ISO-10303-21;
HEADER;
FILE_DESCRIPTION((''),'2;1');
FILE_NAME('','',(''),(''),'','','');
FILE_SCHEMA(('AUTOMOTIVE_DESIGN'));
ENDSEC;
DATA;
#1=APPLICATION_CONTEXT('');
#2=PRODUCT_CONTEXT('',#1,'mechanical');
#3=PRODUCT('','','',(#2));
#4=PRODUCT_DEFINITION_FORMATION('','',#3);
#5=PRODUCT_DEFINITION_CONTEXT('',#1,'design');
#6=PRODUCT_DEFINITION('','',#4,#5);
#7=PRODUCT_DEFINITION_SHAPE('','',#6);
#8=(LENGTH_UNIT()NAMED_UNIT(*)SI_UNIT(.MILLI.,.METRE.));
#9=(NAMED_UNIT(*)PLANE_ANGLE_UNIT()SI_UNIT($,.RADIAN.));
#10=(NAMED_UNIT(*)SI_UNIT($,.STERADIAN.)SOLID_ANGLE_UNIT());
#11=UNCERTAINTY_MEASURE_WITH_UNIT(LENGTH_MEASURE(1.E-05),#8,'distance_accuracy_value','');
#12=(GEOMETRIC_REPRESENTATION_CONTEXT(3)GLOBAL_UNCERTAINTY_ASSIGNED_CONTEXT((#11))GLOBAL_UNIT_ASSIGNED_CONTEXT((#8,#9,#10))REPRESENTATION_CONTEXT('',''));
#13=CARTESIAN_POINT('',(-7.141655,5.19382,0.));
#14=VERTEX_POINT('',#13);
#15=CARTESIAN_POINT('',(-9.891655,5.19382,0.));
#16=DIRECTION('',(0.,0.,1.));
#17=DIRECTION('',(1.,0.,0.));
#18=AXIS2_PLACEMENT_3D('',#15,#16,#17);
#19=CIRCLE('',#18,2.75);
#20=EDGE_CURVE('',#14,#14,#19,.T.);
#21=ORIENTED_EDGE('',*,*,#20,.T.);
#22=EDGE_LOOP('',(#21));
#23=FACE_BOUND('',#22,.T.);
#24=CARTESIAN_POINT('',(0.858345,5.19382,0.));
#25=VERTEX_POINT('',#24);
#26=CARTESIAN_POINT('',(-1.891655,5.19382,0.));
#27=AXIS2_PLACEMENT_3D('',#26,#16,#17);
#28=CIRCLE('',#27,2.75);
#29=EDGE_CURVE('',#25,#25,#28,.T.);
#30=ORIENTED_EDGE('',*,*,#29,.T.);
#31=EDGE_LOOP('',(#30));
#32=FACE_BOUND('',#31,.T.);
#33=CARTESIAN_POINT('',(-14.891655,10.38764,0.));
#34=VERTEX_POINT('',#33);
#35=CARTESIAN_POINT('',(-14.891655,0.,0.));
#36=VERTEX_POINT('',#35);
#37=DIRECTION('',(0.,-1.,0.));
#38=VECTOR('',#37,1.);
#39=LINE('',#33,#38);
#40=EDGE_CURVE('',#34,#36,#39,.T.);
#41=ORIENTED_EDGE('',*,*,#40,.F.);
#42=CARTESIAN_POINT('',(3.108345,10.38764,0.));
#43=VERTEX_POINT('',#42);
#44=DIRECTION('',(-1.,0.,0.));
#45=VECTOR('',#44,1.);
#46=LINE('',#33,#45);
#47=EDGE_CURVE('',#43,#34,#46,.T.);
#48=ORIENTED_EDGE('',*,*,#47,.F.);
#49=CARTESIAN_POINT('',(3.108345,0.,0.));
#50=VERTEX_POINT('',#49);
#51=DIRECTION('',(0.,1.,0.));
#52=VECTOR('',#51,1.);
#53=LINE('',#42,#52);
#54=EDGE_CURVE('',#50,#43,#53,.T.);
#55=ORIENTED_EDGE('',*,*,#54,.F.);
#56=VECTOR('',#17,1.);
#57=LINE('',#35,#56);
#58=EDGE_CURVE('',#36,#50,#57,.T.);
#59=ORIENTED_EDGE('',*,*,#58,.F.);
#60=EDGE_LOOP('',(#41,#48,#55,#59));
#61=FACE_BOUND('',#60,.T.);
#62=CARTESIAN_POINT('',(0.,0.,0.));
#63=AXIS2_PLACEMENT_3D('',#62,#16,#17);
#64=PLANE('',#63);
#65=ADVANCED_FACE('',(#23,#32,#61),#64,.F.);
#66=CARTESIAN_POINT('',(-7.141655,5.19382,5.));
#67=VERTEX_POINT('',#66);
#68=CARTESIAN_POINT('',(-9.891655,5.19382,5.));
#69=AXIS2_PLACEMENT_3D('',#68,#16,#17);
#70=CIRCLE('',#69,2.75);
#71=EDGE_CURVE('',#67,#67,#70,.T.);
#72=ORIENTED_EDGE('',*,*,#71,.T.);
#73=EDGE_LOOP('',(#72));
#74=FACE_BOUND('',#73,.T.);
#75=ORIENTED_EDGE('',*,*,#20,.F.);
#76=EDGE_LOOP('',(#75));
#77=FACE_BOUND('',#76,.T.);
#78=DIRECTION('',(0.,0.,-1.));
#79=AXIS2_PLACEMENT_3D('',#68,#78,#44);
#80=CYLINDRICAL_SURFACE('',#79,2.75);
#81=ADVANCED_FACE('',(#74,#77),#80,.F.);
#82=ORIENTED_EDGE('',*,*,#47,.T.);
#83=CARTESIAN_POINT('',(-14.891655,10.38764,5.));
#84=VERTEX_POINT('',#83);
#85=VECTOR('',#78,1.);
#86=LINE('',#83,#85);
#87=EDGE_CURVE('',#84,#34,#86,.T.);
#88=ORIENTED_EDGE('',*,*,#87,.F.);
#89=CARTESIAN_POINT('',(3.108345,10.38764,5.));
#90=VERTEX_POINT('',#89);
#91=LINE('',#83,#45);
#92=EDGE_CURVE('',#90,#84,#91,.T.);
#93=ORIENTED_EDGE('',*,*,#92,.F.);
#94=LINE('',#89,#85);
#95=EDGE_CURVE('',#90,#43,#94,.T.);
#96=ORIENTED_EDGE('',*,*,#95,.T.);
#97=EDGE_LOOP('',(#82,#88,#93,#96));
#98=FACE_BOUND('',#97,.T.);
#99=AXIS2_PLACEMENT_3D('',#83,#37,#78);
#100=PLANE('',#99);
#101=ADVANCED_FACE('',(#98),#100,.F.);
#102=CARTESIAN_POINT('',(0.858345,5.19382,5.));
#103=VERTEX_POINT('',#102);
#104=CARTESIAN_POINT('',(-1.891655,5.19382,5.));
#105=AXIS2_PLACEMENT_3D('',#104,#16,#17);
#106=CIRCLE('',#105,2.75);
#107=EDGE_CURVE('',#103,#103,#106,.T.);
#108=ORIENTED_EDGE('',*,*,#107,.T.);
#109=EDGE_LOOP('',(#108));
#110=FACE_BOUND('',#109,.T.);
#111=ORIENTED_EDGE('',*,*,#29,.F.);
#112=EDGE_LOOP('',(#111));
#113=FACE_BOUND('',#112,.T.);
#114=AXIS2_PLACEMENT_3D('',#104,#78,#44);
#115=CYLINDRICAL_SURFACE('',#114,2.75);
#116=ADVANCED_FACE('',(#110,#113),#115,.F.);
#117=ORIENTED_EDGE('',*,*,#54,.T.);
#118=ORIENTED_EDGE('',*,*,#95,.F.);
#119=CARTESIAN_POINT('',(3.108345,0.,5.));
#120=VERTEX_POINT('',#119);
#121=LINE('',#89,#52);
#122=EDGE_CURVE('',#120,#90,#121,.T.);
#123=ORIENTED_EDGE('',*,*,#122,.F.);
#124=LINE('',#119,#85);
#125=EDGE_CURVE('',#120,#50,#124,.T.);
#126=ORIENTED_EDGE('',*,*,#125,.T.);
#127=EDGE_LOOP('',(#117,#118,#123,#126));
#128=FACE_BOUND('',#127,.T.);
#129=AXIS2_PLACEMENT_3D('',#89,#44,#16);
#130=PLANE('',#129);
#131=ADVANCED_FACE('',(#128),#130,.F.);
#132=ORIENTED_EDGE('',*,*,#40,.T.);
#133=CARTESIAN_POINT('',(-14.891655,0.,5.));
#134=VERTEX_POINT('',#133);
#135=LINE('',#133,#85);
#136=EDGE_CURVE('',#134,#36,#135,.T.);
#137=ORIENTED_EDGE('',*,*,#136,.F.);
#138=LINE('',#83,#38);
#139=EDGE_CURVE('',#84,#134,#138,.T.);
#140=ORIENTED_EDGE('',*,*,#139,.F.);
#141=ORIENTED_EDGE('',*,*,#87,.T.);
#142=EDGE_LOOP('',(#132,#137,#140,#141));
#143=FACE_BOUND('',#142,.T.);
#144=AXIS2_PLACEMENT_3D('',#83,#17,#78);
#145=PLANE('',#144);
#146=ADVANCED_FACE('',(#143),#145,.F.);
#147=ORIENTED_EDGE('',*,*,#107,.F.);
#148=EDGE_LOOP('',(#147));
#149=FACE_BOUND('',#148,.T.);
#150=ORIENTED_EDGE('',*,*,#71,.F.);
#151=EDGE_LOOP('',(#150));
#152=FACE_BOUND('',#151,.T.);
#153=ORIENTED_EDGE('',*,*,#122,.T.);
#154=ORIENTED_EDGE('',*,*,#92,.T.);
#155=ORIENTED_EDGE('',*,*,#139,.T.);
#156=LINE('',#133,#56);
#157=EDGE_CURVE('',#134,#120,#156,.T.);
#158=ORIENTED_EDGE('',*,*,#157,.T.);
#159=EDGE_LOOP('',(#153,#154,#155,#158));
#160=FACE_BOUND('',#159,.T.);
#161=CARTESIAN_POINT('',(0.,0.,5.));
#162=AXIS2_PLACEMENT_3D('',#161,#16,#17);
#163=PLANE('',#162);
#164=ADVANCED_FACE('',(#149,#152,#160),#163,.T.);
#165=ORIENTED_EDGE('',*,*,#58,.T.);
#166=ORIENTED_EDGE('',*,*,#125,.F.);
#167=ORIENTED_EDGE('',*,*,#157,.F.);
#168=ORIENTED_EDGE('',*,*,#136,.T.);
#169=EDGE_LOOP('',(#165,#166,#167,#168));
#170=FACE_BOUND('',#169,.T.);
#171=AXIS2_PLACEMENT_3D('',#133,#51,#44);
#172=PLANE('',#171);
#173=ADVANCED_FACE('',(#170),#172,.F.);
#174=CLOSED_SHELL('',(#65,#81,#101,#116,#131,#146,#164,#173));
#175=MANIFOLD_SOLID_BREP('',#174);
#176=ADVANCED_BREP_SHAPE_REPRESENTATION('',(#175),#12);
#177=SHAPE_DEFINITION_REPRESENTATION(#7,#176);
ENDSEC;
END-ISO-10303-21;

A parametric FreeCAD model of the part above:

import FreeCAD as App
import Part
import Sketcher

V = App.Vector


def add_polygon(sketch, points):
    """Adds a closed chain of lines whose ends are joined by coincident constraints."""
    first, n = sketch.GeometryCount, len(points)
    for a, b in zip(points, points[1:] + points[:1]):
        sketch.addGeometry(Part.LineSegment(App.Vector(*a, 0), App.Vector(*b, 0)), False)
    for i in range(n):
        sketch.addConstraint(Sketcher.Constraint("Coincident", first + i, 2, first + (i + 1) % n, 1))

doc = App.newDocument("Part")
body = doc.addObject("PartDesign::Body", "Body")

# Sketch on XY plane
sketch1 = body.newObject("Sketcher::SketchObject", "Sketch")
sketch1.AttachmentSupport = (doc.getObject("XY_Plane"), [""])
sketch1.MapMode = "FlatFace"
add_polygon(sketch1, [(-14.9, 10.4), (-14.9, 0), (3.1, 0), (3.1, 10.4)])  # lines 0-3
sketch1.addGeometry(Part.Circle(V(-9.9, 5.2, 0), V(0, 0, 1), 2.8), False)  # 4
sketch1.addGeometry(Part.Circle(V(-1.9, 5.2, 0), V(0, 0, 1), 2.8), False)  # 5
sketch1.addConstraint(Sketcher.Constraint("Vertical", 0))
sketch1.addConstraint(Sketcher.Constraint("Horizontal", 1))
sketch1.addConstraint(Sketcher.Constraint("Vertical", 2))
sketch1.addConstraint(Sketcher.Constraint("Horizontal", 3))
sketch1.addConstraint(Sketcher.Constraint("Equal", 4, 5))
sketch1.addConstraint(Sketcher.Constraint("PointOnObject", 0, 2, -1))
sketch1.addConstraint(Sketcher.Constraint("Horizontal", 4, 3, 5, 3))
sketch1.addConstraint(Sketcher.Constraint("Diameter", 4, 5.5))
sketch1.addConstraint(Sketcher.Constraint("DistanceX", 1, 1, 1, 2, 18.0))
sketch1.addConstraint(Sketcher.Constraint("DistanceX", 4, 3, 5, 3, 8.0))
sketch1.addConstraint(Sketcher.Constraint("DistanceX", 0, 2, 4, 3, 5.0))
sketch1.addConstraint(Sketcher.Constraint("DistanceY", 0, 2, 0, 1, 10.38764))
sketch1.addConstraint(Sketcher.Constraint("DistanceY", -1, 1, 4, 3, 5.19382))
sketch1.addConstraint(Sketcher.Constraint("DistanceX", 4, 3, -1, 1, 9.891655))
pad1 = body.newObject("PartDesign::Pad", "Pad")
pad1.Profile = sketch1
pad1.Length = 5

doc.recompute()
